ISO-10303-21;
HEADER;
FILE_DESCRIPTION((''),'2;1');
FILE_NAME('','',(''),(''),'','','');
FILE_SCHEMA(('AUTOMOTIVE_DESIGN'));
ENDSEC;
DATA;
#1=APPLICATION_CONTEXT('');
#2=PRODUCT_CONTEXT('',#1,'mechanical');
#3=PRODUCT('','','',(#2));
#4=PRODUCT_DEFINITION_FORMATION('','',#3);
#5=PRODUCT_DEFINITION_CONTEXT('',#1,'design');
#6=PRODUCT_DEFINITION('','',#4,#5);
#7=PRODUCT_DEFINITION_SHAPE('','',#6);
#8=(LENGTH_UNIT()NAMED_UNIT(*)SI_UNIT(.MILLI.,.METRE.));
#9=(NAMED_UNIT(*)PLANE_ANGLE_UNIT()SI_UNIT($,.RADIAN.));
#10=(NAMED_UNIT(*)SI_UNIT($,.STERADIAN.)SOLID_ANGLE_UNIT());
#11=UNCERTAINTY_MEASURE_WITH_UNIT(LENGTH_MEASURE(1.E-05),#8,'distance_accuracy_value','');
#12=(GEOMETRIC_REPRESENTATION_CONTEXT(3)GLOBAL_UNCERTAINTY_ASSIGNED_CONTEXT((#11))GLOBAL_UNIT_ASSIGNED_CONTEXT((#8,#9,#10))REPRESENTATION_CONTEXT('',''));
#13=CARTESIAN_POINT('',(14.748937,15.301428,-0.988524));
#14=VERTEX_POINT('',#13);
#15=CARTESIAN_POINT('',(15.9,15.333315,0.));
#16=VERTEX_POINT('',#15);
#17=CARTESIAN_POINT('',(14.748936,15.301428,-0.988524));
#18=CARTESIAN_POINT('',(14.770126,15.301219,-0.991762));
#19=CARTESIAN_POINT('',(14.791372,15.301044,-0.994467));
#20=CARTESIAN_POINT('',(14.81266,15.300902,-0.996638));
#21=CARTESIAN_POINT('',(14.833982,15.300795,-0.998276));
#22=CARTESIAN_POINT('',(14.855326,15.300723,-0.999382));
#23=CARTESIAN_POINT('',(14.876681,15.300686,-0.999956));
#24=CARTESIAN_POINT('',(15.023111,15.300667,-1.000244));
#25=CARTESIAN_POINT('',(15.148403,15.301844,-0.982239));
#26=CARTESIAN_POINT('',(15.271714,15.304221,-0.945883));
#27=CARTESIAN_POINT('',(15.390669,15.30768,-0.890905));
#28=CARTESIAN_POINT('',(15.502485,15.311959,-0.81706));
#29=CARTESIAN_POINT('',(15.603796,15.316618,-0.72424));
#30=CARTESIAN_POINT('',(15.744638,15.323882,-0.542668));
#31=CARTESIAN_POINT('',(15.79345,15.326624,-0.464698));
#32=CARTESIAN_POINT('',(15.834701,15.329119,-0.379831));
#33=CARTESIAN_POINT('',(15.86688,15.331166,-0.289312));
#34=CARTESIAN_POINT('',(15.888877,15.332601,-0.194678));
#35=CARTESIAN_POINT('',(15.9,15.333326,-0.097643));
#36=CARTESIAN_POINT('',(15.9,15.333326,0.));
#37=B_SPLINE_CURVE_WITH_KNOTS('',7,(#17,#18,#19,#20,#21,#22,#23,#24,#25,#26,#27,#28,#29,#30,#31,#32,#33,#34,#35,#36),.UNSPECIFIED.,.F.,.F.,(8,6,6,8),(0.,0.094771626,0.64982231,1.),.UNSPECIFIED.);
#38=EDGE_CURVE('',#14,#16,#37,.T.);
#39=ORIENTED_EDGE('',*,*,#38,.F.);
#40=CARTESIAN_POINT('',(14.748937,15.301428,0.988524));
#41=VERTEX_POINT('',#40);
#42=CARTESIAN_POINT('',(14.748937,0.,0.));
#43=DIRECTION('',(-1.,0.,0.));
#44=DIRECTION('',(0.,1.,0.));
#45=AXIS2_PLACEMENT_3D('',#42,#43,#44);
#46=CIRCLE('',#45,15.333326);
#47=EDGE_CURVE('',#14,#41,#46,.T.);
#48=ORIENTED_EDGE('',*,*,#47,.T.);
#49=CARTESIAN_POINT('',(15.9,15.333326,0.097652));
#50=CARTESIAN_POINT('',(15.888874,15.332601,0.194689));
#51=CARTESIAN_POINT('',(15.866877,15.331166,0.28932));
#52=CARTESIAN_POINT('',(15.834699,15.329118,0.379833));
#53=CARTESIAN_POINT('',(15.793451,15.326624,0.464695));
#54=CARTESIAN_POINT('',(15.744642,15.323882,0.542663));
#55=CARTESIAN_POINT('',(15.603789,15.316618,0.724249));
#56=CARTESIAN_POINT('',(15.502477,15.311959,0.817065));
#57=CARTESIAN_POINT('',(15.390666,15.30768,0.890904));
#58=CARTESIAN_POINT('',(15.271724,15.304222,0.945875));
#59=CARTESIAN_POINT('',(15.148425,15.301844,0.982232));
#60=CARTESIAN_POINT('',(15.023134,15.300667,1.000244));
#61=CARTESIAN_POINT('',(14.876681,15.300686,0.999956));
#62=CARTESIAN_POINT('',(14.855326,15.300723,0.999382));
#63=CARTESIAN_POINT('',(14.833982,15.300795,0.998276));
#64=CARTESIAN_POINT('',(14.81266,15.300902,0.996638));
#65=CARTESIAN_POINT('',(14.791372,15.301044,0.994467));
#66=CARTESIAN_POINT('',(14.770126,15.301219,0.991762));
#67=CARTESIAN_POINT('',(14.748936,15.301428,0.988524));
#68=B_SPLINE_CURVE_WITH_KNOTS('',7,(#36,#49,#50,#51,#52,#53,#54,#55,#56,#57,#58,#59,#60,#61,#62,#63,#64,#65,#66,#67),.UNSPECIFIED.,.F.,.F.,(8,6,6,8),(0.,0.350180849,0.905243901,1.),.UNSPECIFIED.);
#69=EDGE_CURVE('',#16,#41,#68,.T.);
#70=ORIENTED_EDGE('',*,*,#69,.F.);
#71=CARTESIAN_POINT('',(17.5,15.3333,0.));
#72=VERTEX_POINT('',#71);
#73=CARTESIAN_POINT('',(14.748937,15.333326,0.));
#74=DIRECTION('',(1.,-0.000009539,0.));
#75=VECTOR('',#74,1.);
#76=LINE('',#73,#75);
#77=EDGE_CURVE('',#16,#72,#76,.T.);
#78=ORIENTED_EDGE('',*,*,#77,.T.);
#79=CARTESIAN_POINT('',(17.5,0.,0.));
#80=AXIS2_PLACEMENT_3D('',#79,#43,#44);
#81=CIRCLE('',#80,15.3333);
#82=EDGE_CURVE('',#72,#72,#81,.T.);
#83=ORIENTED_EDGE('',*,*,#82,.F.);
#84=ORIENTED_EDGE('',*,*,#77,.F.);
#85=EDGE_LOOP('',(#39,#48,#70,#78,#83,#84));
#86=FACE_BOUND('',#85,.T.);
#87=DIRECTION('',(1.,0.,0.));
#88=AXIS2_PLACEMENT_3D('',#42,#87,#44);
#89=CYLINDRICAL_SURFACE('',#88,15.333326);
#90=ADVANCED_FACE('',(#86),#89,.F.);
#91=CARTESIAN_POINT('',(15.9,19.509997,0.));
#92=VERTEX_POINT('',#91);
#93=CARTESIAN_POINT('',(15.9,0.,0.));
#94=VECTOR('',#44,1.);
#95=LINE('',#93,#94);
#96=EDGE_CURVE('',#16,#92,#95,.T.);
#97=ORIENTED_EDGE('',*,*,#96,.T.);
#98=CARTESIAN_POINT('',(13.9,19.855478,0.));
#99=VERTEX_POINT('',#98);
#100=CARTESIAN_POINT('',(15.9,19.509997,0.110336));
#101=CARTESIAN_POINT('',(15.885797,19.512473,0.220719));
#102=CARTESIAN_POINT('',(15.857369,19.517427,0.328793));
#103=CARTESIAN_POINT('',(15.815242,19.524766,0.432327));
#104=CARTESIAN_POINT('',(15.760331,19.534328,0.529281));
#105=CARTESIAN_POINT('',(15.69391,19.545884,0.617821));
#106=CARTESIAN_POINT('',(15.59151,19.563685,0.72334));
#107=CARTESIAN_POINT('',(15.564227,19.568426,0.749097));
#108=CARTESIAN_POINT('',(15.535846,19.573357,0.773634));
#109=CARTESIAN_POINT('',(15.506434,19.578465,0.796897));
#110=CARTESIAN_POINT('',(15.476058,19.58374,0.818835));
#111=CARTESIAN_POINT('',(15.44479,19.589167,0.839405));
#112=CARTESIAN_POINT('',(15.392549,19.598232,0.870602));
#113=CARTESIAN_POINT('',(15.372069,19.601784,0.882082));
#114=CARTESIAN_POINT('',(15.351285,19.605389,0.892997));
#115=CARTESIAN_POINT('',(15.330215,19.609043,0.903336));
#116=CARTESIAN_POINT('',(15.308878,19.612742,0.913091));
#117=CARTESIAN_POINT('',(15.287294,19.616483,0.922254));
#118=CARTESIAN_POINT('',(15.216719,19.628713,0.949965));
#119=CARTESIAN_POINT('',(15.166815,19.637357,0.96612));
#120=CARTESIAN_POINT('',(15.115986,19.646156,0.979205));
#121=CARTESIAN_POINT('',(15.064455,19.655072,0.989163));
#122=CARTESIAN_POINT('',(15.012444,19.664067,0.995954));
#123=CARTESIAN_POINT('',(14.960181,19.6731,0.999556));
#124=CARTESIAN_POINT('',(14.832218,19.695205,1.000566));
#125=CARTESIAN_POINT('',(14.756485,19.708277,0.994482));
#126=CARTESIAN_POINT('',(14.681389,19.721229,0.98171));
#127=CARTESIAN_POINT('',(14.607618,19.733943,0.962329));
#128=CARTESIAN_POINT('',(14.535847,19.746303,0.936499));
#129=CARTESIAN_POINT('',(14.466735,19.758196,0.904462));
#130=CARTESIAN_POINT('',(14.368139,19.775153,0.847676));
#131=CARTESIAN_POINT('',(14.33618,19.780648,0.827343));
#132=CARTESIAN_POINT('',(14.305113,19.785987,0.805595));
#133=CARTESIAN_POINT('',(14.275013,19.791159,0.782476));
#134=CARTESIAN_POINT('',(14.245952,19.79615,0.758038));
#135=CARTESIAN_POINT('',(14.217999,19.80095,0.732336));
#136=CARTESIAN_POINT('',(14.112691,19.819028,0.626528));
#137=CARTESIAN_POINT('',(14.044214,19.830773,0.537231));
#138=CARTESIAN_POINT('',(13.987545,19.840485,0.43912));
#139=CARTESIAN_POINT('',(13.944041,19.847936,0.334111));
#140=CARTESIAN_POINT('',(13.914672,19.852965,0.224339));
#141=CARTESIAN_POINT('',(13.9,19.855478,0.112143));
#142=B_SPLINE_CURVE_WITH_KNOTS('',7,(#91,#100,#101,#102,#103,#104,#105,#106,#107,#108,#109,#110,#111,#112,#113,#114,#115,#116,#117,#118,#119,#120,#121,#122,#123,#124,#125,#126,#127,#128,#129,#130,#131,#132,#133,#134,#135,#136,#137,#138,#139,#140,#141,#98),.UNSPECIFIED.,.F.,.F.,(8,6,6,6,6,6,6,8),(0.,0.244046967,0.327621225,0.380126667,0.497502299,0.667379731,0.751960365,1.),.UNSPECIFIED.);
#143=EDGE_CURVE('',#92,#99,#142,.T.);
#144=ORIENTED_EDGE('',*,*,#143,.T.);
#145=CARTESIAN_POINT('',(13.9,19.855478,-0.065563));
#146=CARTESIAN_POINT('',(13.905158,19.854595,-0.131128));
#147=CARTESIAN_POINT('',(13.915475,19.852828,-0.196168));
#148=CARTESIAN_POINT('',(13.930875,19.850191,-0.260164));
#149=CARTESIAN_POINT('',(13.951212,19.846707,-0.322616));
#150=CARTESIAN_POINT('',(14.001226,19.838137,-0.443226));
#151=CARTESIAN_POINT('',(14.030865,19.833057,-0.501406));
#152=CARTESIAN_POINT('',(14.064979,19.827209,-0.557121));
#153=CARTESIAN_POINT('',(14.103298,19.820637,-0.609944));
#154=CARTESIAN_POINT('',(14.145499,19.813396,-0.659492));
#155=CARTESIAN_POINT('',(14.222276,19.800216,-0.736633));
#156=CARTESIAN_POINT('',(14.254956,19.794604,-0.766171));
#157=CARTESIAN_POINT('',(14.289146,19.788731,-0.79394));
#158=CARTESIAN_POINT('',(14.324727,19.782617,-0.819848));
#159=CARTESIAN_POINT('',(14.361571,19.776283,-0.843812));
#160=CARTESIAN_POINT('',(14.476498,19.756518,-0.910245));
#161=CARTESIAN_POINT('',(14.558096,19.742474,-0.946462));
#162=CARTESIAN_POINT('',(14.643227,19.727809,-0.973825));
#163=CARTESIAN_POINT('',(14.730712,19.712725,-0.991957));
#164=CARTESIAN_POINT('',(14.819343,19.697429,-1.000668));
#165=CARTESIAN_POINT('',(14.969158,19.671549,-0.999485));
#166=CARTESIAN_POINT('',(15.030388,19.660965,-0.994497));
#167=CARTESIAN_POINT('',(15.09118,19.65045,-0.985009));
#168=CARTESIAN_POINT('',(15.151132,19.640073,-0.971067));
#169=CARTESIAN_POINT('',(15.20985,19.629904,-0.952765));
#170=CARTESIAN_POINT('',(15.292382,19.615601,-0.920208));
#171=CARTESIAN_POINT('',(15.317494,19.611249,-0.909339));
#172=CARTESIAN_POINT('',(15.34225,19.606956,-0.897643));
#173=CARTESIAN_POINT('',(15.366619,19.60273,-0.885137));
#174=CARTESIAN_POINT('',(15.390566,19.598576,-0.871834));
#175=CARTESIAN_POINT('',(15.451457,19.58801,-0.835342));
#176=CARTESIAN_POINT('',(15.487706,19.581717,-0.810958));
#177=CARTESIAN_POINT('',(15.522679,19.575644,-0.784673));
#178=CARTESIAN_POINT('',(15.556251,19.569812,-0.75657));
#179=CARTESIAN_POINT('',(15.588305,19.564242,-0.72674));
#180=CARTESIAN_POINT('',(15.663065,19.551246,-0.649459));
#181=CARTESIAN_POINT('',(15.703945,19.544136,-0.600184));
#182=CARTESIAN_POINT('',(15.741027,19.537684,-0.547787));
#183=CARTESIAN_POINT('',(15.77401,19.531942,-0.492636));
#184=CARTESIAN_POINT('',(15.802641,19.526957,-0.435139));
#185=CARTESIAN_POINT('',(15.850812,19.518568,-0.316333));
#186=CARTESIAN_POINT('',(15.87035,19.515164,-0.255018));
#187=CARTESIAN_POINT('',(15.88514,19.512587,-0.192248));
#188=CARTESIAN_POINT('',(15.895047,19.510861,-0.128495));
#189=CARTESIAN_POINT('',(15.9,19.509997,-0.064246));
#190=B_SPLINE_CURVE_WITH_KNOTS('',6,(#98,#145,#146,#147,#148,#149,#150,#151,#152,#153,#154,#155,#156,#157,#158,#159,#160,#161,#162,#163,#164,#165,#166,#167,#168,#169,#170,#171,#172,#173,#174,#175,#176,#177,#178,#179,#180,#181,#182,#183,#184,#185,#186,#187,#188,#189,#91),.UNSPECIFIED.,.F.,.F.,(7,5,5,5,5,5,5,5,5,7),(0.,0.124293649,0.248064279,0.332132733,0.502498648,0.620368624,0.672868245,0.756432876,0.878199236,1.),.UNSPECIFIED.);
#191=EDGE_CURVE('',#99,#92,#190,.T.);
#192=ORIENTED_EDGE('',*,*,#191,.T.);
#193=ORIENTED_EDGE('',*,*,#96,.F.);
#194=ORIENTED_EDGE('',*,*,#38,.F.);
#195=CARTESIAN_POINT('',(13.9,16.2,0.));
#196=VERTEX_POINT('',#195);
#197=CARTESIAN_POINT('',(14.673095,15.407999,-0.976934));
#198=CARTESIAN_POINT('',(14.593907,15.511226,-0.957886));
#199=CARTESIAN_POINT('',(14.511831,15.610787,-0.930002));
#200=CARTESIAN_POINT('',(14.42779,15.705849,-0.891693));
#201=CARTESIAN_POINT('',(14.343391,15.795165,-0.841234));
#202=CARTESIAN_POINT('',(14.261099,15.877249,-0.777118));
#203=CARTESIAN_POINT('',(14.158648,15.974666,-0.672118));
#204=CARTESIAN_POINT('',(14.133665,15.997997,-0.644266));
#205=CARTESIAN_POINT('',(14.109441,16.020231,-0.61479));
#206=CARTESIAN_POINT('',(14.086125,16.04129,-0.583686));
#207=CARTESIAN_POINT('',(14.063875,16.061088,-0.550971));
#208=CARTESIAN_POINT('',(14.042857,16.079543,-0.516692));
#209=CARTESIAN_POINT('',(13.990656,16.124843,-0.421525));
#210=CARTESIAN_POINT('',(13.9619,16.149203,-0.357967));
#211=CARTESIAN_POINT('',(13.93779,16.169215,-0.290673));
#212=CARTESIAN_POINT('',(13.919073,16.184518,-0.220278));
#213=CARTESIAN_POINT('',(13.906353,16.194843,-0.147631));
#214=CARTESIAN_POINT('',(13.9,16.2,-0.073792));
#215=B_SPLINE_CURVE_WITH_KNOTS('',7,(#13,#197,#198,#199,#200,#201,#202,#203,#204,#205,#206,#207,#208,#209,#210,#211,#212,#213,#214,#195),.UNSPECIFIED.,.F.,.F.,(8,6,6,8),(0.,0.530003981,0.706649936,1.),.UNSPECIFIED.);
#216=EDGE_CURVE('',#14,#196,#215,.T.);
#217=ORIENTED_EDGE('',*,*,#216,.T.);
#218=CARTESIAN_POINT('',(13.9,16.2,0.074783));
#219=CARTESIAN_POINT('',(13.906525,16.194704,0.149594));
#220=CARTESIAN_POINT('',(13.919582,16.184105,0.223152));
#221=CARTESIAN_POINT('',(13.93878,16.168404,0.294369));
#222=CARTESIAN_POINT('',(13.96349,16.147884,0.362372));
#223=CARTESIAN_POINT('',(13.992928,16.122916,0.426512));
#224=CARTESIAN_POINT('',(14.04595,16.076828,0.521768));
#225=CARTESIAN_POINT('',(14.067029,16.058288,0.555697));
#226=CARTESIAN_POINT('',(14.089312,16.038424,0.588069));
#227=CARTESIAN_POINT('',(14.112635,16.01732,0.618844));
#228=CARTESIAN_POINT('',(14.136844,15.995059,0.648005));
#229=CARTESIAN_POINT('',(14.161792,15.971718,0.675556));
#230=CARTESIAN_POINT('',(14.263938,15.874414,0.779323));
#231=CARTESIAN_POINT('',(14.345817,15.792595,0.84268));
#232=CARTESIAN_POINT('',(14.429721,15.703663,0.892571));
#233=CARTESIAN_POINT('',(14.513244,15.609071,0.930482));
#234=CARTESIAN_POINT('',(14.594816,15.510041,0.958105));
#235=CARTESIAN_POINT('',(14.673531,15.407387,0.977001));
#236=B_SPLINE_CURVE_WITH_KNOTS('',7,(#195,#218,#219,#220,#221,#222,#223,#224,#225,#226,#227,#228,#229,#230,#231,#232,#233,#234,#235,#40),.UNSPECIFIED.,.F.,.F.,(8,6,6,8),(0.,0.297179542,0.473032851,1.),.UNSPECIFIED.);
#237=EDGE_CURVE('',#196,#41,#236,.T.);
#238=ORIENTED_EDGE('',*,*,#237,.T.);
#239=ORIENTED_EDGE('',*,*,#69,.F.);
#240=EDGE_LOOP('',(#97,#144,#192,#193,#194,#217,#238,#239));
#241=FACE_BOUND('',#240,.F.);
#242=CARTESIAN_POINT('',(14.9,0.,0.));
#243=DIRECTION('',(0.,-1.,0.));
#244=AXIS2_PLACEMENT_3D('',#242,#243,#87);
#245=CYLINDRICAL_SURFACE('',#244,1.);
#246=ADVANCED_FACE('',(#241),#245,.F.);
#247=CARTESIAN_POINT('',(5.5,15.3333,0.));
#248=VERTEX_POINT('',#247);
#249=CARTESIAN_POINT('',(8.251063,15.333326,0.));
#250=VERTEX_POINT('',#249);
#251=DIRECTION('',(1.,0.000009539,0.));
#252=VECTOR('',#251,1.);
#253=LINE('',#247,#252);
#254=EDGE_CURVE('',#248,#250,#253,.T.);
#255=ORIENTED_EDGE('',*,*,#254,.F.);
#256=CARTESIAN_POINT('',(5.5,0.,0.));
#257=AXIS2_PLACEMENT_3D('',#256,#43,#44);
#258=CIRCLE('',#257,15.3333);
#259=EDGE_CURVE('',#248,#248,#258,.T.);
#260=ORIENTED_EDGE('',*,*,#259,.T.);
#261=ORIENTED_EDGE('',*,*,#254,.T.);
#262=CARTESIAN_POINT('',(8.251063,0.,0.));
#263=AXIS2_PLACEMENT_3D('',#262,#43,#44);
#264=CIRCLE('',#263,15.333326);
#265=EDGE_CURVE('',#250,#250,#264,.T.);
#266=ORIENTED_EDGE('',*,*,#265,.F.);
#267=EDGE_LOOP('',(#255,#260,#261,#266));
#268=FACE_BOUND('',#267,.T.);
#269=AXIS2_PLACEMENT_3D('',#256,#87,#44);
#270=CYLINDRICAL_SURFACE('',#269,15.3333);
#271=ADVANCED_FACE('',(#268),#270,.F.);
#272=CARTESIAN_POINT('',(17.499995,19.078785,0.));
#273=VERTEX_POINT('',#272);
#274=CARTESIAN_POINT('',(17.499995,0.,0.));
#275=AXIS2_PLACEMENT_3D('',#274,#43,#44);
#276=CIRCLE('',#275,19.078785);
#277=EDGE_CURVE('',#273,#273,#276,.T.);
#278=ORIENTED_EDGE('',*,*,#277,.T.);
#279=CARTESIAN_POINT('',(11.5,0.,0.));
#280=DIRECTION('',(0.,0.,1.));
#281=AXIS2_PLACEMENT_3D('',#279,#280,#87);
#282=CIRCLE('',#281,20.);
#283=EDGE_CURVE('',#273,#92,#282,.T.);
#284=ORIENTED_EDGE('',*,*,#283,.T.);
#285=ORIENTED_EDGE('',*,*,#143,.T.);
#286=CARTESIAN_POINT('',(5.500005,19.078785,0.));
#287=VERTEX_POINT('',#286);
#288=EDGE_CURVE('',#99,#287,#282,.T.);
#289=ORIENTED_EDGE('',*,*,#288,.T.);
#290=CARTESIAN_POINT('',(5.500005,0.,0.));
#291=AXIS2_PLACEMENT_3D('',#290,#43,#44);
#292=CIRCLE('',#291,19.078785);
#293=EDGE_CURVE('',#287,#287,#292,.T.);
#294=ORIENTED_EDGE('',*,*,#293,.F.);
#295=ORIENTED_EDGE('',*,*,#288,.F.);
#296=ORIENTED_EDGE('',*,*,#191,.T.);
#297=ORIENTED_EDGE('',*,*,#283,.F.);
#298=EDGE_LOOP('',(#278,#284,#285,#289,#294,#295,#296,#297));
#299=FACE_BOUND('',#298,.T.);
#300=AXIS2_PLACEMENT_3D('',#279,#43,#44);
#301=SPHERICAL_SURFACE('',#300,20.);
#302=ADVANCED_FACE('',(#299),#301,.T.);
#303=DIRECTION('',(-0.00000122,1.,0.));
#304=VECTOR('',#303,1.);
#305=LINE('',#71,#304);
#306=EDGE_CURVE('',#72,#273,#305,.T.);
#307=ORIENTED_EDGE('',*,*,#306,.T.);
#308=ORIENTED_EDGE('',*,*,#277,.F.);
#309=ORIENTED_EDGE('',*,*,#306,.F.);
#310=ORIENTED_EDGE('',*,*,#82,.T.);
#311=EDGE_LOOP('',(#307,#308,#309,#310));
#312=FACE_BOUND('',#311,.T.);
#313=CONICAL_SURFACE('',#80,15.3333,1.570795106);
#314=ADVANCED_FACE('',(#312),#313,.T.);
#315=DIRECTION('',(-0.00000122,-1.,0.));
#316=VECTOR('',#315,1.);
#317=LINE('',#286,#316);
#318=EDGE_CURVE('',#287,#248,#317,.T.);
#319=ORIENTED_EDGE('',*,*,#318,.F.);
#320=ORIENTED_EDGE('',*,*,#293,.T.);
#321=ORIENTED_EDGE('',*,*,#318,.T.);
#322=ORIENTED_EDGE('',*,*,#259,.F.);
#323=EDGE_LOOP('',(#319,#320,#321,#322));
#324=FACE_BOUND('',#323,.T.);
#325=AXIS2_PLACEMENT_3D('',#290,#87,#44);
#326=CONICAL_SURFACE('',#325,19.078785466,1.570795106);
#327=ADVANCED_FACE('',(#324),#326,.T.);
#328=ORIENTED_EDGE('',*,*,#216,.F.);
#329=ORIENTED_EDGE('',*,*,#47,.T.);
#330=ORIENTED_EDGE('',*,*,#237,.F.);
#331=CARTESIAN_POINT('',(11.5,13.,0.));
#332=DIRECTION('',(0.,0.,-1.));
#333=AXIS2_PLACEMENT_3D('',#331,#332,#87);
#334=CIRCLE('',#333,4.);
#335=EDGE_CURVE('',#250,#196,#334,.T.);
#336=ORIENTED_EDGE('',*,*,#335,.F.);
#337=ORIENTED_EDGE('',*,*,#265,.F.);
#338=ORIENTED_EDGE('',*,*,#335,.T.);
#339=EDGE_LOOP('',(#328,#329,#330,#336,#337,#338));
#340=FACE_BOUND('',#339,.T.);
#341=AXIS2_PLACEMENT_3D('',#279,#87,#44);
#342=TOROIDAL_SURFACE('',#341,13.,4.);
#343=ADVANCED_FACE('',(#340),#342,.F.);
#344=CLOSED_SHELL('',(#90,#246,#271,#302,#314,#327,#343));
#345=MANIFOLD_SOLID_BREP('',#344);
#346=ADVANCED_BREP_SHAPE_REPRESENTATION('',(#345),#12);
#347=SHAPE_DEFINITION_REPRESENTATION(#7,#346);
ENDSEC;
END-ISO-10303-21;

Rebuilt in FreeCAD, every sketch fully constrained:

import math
import FreeCAD as App
import Part
import Sketcher

doc = App.newDocument("Part")
body = doc.addObject("PartDesign::Body", "Body")

# Sketch on XY plane
sketch1 = body.newObject("Sketcher::SketchObject", "Sketch")
sketch1.AttachmentSupport = (doc.getObject("XY_Plane"), [""])
sketch1.MapMode = "FlatFace"
sketch1.addGeometry([
    Part.ArcOfCircle(Part.Circle(App.Vector(11.5, 0, 0), App.Vector(0, 0, 1), 20), math.radians(73), math.radians(107)),  # 0
    Part.LineSegment(App.Vector(5.5, 19.1, 0), App.Vector(5.5, 15.3, 0)),  # 1
    Part.LineSegment(App.Vector(5.5, 15.3, 0), App.Vector(8.3, 15.3, 0)),  # 2
    Part.ArcOfCircle(Part.Circle(App.Vector(11.5, 13, 0), App.Vector(0, 0, 1), 4), math.radians(36), math.radians(144)),  # 3
    Part.LineSegment(App.Vector(14.7, 15.3, 0), App.Vector(17.5, 15.3, 0)),  # 4
    Part.LineSegment(App.Vector(17.5, 15.3, 0), App.Vector(17.5, 19.1, 0)),  # 5
], False)
sketch1.addConstraint([
    Sketcher.Constraint("Coincident", 0, 2, 1, 1),
    Sketcher.Constraint("Coincident", 1, 2, 2, 1),
    Sketcher.Constraint("Coincident", 2, 2, 3, 2),
    Sketcher.Constraint("Coincident", 3, 1, 4, 1),
    Sketcher.Constraint("Coincident", 4, 2, 5, 1),
    Sketcher.Constraint("Coincident", 5, 2, 0, 1),
    Sketcher.Constraint("Vertical", 1),
    Sketcher.Constraint("Horizontal", 2),
    Sketcher.Constraint("Horizontal", 4),
    Sketcher.Constraint("Vertical", 5),
    Sketcher.Constraint("PointOnObject", 0, 3, -1),
    Sketcher.Constraint("Horizontal", 2, 2, 3, 1),
    Sketcher.Constraint("Horizontal", 0, 2, 5, 2),
    Sketcher.Constraint("Vertical", 0, 3, 3, 3),
    Sketcher.Constraint("Radius", 0, 20.0),
    Sketcher.Constraint("Radius", 3, 4.0),
    Sketcher.Constraint("DistanceY", -1, 1, 3, 3, 13.0),
    Sketcher.Constraint("DistanceX", 0, 2, 3, 3, 6.0),
    Sketcher.Constraint("DistanceX", -1, 1, 0, 3, 11.5),
    Sketcher.Constraint("DistanceX", 2, 1, 2, 2, 2.751),
])
revolution = body.newObject("PartDesign::Revolution", "Revolution")
revolution.Profile = sketch1
revolution.ReferenceAxis = (sketch1, ["H_Axis"])
revolution.Angle = 360

# Sketch on XZ plane
sketch2 = body.newObject("Sketcher::SketchObject", "Sketch001")
sketch2.AttachmentSupport = (doc.getObject("XZ_Plane"), [""])
sketch2.MapMode = "FlatFace"
sketch2.addGeometry(Part.Circle(App.Vector(14.9, 0, 0), App.Vector(0, 0, 1), 1), False)
sketch2.addConstraint([
    Sketcher.Constraint("PointOnObject", 0, 3, -1),
    Sketcher.Constraint("Diameter", 0, 2.0),
    Sketcher.Constraint("DistanceX", -1, 1, 0, 3, 14.9),
])
pocket1 = body.newObject("PartDesign::Pocket", "Pocket")
pocket1.Profile = sketch2
pocket1.Length = 40

doc.recompute()
